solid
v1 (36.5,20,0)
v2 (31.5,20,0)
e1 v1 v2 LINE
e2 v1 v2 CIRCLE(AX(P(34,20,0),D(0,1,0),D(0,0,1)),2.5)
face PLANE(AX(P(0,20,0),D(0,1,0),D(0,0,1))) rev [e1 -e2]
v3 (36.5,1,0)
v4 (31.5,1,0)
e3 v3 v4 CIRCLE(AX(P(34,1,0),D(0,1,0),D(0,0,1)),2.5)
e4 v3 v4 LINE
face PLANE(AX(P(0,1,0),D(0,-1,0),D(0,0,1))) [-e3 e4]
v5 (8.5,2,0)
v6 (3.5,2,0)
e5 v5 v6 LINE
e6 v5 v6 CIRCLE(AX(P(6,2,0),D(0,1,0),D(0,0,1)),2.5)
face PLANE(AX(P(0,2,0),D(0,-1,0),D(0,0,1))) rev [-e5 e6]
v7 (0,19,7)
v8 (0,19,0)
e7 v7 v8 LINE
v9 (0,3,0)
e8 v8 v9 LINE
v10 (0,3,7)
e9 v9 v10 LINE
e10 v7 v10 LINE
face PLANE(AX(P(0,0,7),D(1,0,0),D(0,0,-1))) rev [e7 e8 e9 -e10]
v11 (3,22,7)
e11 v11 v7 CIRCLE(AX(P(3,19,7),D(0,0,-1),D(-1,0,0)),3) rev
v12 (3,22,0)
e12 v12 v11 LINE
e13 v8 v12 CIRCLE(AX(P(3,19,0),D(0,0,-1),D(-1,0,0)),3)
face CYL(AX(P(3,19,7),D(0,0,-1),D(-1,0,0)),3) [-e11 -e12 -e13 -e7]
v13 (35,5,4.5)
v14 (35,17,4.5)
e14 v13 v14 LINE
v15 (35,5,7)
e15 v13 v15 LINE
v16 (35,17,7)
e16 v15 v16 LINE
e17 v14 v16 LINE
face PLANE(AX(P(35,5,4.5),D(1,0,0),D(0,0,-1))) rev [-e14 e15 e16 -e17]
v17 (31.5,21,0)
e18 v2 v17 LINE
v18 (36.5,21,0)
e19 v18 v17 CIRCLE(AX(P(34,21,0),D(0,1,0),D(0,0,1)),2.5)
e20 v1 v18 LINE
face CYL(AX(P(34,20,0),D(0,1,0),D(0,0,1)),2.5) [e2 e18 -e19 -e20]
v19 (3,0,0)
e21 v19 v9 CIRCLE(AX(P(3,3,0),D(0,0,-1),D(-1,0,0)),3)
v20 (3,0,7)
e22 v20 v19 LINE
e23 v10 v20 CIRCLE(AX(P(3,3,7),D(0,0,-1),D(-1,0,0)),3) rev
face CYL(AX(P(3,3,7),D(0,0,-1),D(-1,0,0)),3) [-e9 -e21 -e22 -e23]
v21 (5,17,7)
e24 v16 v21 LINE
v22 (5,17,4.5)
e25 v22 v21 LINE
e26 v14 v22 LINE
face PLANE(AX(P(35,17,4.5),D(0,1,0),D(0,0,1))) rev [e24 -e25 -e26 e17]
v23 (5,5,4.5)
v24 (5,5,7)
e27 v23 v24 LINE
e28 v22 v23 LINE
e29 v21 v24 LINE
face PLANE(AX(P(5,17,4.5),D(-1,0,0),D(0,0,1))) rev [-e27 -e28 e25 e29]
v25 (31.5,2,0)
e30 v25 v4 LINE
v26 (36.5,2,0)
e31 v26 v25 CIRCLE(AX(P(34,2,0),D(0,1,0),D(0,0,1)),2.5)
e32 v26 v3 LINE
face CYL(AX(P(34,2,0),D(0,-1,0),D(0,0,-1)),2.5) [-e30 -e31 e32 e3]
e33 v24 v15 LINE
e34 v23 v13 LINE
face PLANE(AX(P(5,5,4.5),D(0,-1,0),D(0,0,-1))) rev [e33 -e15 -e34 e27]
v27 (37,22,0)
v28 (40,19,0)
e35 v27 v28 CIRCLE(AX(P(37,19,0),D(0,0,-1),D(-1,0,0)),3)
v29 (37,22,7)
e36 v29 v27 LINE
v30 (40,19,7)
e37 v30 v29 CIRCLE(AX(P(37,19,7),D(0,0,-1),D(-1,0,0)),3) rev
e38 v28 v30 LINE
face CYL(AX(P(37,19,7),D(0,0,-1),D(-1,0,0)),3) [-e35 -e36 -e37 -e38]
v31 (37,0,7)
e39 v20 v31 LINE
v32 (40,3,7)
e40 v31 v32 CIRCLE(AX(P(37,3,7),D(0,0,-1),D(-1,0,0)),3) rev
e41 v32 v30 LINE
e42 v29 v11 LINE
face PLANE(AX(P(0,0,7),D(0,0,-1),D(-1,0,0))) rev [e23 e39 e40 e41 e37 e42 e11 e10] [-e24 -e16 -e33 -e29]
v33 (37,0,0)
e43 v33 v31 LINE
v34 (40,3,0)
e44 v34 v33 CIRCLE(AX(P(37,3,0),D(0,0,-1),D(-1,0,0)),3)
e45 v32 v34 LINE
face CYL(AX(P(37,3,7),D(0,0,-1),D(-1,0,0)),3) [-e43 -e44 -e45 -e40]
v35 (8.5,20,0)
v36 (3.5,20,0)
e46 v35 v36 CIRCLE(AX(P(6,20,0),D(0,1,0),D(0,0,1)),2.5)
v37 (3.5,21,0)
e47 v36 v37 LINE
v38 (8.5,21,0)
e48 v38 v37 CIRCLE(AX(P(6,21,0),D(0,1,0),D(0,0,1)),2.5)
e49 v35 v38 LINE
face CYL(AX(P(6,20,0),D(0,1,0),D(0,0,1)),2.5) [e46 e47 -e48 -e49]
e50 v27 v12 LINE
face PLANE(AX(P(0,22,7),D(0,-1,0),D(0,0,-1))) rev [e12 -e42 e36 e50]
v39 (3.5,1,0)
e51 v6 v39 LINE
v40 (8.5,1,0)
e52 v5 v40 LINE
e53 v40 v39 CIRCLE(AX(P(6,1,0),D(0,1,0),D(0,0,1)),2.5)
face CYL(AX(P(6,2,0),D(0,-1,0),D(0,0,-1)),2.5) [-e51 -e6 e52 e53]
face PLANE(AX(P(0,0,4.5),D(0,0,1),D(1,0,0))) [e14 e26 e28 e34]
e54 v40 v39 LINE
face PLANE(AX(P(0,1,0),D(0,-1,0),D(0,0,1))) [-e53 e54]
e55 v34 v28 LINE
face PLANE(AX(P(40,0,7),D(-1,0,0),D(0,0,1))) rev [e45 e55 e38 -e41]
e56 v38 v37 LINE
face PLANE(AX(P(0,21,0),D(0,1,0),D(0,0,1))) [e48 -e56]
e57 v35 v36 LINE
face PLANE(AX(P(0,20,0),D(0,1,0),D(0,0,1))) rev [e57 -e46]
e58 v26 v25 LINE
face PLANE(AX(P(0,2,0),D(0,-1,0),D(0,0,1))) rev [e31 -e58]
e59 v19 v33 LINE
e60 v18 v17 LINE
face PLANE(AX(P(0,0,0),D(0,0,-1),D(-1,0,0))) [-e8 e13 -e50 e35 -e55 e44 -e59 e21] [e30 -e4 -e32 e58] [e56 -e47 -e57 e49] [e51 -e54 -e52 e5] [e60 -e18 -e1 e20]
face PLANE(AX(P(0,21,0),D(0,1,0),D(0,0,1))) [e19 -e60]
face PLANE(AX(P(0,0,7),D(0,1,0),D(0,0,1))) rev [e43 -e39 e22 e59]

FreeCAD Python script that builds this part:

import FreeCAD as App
import Part
import Sketcher

V = App.Vector
Q = App.Units.Quantity


def edges_at(feature, points):
    """Names of the edges that pass closest to the given points."""
    edges = feature.Shape.Edges
    near = lambda p: min(range(len(edges)), key=lambda i: edges[i].distToShape(Part.Vertex(*p))[0])
    return sorted({f"Edge{near(p) + 1}" for p in points})


def add_polygon(sketch, points):
    """Adds a closed chain of lines whose ends are joined by coincident constraints."""
    first, n = sketch.GeometryCount, len(points)
    for a, b in zip(points, points[1:] + points[:1]):
        sketch.addGeometry(Part.LineSegment(App.Vector(*a, 0), App.Vector(*b, 0)), False)
    for i in range(n):
        sketch.addConstraint(Sketcher.Constraint("Coincident", first + i, 2, first + (i + 1) % n, 1))

doc = App.newDocument("Part")
body = doc.addObject("PartDesign::Body", "Body")

# Sketch on XY plane
sketch1 = body.newObject("Sketcher::SketchObject", "Sketch")
sketch1.AttachmentSupport = (doc.getObject("XY_Plane"), [""])
sketch1.MapMode = "FlatFace"
add_polygon(sketch1, [(0, 22), (0, 0), (40, 0), (40, 22)])  # lines 0-3
sketch1.addConstraint([
    Sketcher.Constraint("Vertical", 0),
    Sketcher.Constraint("Horizontal", 1),
    Sketcher.Constraint("Vertical", 2),
    Sketcher.Constraint("Horizontal", 3),
    Sketcher.Constraint("Coincident", 0, 2, -1, 1),
    Sketcher.Constraint("DistanceX", 1, 1, 1, 2, Q("40 mm")),
    Sketcher.Constraint("DistanceY", 0, 2, 0, 1, Q("22 mm")),
])
pad1 = body.newObject("PartDesign::Pad", "Pad")
pad1.Profile = sketch1
pad1.Length = 7
doc.recompute()

fillet = body.newObject("PartDesign::Fillet", "Fillet")
fillet.Base = (pad1, edges_at(pad1, [
    (0, 22, 3.5),
    (40, 22, 3.5),
    (40, 0, 3.5),
    (0, 0, 3.5),
]))
fillet.Radius = 3

# Sketch on XY plane
sketch2 = body.newObject("Sketcher::SketchObject", "Sketch001")
sketch2.AttachmentSupport = (doc.getObject("XY_Plane"), [""])
sketch2.MapMode = "FlatFace"
sketch2.AttachmentOffset = App.Placement(V(0, 0, 7), App.Rotation())
add_polygon(sketch2, [(5, 17), (5, 5), (35, 5), (35, 17)])  # lines 0-3
sketch2.addConstraint([
    Sketcher.Constraint("Vertical", 0),
    Sketcher.Constraint("Horizontal", 1),
    Sketcher.Constraint("Vertical", 2),
    Sketcher.Constraint("Horizontal", 3),
    Sketcher.Constraint("DistanceX", 1, 1, 1, 2, Q("30 mm")),
    Sketcher.Constraint("DistanceY", 0, 2, 0, 1, Q("12 mm")),
    Sketcher.Constraint("DistanceX", -1, 1, 0, 2, Q("5 mm")),
    Sketcher.Constraint("DistanceY", -1, 1, 0, 2, Q("5 mm")),
])
pocket1 = body.newObject("PartDesign::Pocket", "Pocket")
pocket1.Profile = sketch2
pocket1.Length = 2.5

# Sketch on XZ plane
sketch3 = body.newObject("Sketcher::SketchObject", "Sketch002")
sketch3.AttachmentSupport = (doc.getObject("XZ_Plane"), [""])
sketch3.MapMode = "FlatFace"
sketch3.AttachmentOffset = App.Placement(V(0, 0, -21), App.Rotation())
sketch3.addGeometry([
    Part.Circle(V(34, 0, 0), V(0, 0, 1), 2.5),
    Part.Circle(V(6, 0, 0), V(0, 0, 1), 2.5),
], False)
sketch3.addConstraint([
    Sketcher.Constraint("Equal", 0, 1),
    Sketcher.Constraint("PointOnObject", 0, 3, -1),
    Sketcher.Constraint("PointOnObject", 1, 3, -1),
    Sketcher.Constraint("Diameter", 0, Q("5 mm")),
    Sketcher.Constraint("DistanceX", -1, 1, 0, 3, Q("34 mm")),
    Sketcher.Constraint("DistanceX", -1, 1, 1, 3, Q("6 mm")),
])
pad2 = body.newObject("PartDesign::Pad", "Pad001")
pad2.Profile = sketch3
pad2.Length = 1
doc.recompute()

datumplane = body.newObject("PartDesign::Plane", "DatumPlane")
datumplane.AttachmentSupport = (doc.getObject("XZ_Plane"), [""])
datumplane.MapMode = "FlatFace"
datumplane.AttachmentOffset = App.Placement(V(0, 0, -11), App.Rotation())
mirrored = body.newObject("PartDesign::Mirrored", "Mirrored")
mirrored.Originals = [pad2]
mirrored.MirrorPlane = (datumplane, [""])
body.Tip = mirrored

doc.recompute()
